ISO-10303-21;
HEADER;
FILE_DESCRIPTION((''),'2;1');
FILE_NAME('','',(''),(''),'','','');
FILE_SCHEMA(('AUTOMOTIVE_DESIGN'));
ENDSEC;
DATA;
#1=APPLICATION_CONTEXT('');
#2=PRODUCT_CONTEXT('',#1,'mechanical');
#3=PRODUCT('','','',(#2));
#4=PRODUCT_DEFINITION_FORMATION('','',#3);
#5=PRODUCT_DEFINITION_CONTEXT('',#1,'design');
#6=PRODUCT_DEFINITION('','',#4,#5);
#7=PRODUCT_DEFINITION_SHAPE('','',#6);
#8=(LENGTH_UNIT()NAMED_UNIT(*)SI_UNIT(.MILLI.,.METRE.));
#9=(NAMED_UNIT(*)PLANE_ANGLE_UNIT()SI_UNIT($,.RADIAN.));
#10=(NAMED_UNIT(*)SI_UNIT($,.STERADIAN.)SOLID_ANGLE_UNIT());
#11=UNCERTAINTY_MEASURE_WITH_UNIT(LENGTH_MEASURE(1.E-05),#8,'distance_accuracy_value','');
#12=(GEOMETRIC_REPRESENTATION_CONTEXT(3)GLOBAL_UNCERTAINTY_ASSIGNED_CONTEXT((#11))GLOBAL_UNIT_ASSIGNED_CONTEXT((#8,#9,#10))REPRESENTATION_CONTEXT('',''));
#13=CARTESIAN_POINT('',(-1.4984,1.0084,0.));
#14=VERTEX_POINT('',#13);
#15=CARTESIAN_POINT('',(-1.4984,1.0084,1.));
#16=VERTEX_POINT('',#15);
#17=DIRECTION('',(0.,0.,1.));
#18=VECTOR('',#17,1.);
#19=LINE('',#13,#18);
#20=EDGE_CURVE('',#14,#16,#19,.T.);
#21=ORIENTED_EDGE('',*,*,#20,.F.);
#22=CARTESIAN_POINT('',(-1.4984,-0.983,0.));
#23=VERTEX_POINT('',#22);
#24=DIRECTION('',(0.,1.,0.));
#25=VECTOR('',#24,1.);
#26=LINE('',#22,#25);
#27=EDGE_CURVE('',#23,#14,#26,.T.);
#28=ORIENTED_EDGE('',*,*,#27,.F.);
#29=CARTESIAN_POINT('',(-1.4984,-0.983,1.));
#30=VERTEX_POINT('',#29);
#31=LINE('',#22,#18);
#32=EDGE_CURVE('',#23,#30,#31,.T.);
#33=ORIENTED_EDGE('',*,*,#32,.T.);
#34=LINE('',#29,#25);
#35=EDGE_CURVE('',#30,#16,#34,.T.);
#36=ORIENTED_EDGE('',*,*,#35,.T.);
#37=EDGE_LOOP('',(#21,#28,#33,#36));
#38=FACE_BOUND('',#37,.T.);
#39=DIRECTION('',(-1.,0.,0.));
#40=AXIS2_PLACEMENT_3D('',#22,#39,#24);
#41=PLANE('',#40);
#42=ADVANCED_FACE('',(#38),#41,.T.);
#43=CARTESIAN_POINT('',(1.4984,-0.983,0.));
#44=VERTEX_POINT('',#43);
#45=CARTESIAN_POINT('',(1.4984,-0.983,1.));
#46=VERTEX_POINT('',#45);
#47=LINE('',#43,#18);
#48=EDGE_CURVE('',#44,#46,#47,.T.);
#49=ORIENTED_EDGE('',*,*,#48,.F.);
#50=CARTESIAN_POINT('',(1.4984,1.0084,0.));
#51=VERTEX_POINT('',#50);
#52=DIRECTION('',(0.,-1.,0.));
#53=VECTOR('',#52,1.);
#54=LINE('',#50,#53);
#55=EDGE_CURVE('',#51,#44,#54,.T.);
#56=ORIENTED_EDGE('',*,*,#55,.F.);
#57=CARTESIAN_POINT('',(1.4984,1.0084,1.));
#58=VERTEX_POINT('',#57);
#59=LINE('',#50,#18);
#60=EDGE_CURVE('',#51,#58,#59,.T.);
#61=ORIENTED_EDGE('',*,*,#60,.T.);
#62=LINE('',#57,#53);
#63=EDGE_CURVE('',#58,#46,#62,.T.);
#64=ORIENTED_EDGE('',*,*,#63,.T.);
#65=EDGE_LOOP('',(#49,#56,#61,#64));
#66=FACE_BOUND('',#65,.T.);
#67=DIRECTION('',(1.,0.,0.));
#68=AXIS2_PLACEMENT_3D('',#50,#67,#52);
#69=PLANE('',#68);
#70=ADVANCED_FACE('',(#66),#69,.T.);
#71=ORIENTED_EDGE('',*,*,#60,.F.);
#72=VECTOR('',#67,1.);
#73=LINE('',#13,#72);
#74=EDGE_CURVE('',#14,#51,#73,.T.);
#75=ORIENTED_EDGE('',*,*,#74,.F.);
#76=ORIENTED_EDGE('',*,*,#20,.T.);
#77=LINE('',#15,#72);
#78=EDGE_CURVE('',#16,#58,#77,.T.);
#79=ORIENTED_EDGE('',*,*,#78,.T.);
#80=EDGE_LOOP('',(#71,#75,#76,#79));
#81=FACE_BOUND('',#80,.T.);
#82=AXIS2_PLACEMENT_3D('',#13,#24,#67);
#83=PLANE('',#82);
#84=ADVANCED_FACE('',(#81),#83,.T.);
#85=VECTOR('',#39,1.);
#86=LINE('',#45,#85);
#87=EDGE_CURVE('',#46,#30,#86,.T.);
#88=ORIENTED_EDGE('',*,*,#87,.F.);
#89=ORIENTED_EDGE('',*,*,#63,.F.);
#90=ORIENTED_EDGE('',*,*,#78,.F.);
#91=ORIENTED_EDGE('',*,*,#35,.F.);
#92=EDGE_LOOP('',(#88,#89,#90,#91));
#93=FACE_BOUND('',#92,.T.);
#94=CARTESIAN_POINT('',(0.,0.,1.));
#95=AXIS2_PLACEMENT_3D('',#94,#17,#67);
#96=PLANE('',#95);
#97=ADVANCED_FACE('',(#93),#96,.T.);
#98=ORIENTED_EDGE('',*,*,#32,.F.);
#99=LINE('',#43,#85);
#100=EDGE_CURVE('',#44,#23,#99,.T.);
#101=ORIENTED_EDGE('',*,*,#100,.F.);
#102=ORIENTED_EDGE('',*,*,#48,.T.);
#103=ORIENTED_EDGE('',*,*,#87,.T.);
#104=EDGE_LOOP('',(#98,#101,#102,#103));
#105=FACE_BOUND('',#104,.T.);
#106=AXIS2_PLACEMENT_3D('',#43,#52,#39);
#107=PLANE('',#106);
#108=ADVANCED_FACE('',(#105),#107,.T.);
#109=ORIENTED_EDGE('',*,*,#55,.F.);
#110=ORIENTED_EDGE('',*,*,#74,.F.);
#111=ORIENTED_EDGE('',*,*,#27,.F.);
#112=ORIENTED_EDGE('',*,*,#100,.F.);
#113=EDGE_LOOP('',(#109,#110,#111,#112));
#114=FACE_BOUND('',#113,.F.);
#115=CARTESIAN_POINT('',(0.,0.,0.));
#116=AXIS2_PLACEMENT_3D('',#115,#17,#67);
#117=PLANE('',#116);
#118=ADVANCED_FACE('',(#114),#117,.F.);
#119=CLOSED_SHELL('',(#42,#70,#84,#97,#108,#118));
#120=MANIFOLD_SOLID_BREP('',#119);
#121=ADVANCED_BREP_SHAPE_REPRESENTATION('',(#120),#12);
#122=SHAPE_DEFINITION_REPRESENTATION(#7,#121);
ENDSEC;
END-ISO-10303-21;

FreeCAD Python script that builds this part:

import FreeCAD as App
import Part
import Sketcher
from FreeCAD import Vector
Q = App.Units.Quantity


def add_polygon(sketch, points):
    """Adds a closed chain of lines whose ends are joined by coincident constraints."""
    first, n = sketch.GeometryCount, len(points)
    for a, b in zip(points, points[1:] + points[:1]):
        sketch.addGeometry(Part.LineSegment(App.Vector(*a, 0), App.Vector(*b, 0)), False)
    for i in range(n):
        sketch.addConstraint(Sketcher.Constraint("Coincident", first + i, 2, first + (i + 1) % n, 1))

doc = App.newDocument("Part")
params = doc.addObject("Spreadsheet::Sheet", "Params")
for row, (alias, value) in enumerate([
    ("pad1_length", "1 mm"),
], start=1):
    params.set(f"A{row}", alias)
    params.set(f"B{row}", "=" + value)
    params.setAlias(f"B{row}", alias)

body = doc.addObject("PartDesign::Body", "Body")

# Sketch on XY plane
sketch1 = body.newObject("Sketcher::SketchObject", "Sketch")
sketch1.AttachmentSupport = (doc.getObject("XY_Plane"), [""])
sketch1.MapMode = "FlatFace"
add_polygon(sketch1, [(1.5, 1), (-1.5, 1), (-1.5, -1), (1.5, -1)])  # lines 0-3
sketch1.addConstraint([
    Sketcher.Constraint("Horizontal", 0),
    Sketcher.Constraint("Vertical", 1),
    Sketcher.Constraint("Horizontal", 2),
    Sketcher.Constraint("Vertical", 3),
    Sketcher.Constraint("DistanceX", 0, 2, 0, 1, Q("2.9968 mm")),
    Sketcher.Constraint("DistanceY", 1, 2, 1, 1, Q("1.9914 mm")),
    Sketcher.Constraint("DistanceY", 1, 2, -1, 1, Q("0.983 mm")),
    Sketcher.Constraint("DistanceX", 0, 2, -1, 1, Q("1.4984 mm")),
])
pad1 = body.newObject("PartDesign::Pad", "Pad")
pad1.Profile = sketch1
pad1.setExpression("Length", "Params.pad1_length")

doc.recompute()
